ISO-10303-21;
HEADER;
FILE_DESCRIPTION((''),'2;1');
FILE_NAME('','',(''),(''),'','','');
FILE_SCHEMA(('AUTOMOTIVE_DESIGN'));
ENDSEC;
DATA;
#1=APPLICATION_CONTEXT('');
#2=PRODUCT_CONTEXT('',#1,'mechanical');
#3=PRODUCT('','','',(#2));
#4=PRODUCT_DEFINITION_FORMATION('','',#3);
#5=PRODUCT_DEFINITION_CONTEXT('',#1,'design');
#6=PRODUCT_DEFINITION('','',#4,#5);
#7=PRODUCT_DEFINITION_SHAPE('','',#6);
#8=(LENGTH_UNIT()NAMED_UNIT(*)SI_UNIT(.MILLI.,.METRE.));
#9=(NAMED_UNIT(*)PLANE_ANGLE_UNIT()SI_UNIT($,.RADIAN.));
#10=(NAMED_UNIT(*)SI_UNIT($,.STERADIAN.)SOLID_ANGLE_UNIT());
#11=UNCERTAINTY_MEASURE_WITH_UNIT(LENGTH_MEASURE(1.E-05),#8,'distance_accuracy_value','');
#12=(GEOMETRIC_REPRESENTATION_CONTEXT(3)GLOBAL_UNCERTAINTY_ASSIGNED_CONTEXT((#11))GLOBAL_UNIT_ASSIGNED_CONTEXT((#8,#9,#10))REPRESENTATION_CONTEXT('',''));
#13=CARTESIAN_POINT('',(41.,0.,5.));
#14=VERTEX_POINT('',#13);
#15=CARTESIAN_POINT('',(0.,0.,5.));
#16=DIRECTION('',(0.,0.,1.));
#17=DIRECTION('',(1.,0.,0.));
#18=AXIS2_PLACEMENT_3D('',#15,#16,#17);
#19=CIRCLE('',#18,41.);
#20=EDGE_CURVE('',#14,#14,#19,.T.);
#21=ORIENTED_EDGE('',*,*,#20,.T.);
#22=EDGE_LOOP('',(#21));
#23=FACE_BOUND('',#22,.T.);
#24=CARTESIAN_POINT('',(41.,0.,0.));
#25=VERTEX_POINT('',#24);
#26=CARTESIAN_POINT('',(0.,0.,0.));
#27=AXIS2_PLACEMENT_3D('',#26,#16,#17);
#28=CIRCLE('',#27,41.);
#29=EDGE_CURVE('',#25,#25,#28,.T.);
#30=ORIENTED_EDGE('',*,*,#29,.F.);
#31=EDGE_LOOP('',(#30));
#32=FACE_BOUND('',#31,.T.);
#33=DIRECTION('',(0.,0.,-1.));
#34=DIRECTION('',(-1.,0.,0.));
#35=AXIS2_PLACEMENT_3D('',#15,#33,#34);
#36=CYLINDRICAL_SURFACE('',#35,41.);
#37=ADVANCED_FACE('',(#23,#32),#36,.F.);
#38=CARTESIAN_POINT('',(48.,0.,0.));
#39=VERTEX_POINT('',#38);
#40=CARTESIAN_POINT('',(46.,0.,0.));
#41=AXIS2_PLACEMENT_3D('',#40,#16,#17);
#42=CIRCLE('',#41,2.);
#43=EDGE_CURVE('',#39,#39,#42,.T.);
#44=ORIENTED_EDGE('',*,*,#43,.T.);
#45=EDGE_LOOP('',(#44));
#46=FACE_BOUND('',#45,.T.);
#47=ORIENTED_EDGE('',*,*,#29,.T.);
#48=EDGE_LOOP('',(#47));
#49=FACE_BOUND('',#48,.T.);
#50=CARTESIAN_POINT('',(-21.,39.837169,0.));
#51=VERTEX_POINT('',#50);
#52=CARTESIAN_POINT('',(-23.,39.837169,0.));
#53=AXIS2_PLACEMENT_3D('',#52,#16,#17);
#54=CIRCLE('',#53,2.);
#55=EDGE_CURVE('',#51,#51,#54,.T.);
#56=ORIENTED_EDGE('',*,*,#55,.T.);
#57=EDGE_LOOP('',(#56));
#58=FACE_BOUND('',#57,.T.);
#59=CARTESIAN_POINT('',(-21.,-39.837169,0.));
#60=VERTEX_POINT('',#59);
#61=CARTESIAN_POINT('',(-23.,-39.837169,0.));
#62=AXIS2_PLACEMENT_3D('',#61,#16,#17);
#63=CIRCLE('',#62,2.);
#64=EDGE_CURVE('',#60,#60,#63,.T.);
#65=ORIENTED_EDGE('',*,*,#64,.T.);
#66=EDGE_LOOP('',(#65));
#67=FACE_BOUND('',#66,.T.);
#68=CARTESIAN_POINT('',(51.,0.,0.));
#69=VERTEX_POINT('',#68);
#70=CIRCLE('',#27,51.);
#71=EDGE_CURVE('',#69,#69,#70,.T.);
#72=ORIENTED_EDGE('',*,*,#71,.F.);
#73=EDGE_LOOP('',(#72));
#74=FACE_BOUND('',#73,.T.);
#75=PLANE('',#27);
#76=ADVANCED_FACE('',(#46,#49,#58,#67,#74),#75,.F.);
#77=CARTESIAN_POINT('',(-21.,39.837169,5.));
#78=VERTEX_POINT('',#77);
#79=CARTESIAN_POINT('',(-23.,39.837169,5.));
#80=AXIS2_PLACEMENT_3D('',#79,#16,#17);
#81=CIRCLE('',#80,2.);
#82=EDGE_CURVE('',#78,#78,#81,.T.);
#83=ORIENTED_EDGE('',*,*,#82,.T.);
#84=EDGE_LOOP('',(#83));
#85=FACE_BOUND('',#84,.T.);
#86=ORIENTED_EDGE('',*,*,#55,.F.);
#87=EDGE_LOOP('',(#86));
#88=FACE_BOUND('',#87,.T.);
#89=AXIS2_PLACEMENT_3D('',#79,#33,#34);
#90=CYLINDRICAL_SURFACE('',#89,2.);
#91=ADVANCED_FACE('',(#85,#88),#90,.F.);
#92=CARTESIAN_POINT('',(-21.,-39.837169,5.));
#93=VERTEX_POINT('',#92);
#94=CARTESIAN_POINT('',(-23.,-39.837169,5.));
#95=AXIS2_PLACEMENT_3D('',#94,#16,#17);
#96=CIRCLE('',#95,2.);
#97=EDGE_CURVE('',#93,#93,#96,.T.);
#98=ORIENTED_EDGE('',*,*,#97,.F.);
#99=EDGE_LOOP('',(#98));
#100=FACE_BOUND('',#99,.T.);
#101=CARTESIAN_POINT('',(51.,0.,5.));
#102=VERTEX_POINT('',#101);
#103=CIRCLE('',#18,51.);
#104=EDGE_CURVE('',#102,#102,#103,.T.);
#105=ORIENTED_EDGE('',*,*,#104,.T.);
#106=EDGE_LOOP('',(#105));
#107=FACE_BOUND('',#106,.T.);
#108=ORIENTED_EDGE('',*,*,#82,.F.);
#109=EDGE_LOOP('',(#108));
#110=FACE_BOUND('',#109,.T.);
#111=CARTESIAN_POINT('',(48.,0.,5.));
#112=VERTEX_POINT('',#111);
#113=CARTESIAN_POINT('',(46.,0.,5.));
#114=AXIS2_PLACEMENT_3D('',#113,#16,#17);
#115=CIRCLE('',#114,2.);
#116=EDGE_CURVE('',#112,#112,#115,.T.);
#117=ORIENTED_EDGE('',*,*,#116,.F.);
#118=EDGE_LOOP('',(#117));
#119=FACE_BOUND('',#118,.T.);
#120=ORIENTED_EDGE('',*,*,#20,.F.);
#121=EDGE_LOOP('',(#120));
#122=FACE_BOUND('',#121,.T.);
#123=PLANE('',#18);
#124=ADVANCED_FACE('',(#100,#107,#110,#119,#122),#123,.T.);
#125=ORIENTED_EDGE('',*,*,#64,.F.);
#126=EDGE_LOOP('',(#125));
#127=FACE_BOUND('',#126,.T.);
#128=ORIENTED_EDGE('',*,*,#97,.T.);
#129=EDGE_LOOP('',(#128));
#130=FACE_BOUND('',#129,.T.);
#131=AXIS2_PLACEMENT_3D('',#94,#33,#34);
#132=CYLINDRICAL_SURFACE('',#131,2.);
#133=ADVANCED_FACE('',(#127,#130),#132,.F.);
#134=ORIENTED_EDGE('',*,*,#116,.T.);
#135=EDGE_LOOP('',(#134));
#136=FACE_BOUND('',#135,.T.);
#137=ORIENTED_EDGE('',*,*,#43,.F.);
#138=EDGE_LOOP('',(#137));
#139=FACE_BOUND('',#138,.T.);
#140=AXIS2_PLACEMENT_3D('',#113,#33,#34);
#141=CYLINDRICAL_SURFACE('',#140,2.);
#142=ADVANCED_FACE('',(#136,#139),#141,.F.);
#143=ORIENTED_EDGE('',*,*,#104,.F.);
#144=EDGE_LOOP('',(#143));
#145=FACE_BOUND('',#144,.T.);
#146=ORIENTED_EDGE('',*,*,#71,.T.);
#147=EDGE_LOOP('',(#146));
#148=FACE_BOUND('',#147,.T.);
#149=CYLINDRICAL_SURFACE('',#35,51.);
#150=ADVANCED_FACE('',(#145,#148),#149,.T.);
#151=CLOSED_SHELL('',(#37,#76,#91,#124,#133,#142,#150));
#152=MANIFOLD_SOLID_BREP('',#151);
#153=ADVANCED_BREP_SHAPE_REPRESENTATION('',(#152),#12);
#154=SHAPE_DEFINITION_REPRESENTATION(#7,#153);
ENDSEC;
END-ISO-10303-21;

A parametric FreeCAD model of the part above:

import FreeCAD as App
import Part
import Sketcher
from FreeCAD import Vector
Q = App.Units.Quantity

doc = App.newDocument("Part")
params = doc.addObject("Spreadsheet::Sheet", "Params")
for row, (alias, value) in enumerate([
    ("sketch1_diameter", "102 mm"),
    ("sketch1_diameter2", "4 mm"),
    ("sketch1_diameter3", "82 mm"),
    ("pad1_length", "5 mm"),
], start=1):
    params.set(f"A{row}", alias)
    params.set(f"B{row}", "=" + value)
    params.setAlias(f"B{row}", alias)

body = doc.addObject("PartDesign::Body", "Body")

sketch1 = body.newObject("Sketcher::SketchObject", "Sketch")
sketch1.AttachmentSupport = (doc.getObject("XY_Plane"), [""])
sketch1.MapMode = "FlatFace"
sketch1.addGeometry(Part.Circle(Vector(0, 0, 0), Vector(0, 0, 1), 51), False)
sketch1.addGeometry(Part.Circle(Vector(-23, -39.8, 0), Vector(0, 0, 1), 2), False)
sketch1.addGeometry(Part.Circle(Vector(0, 0, 0), Vector(0, 0, 1), 41), False)
sketch1.addGeometry(Part.Circle(Vector(-23, 39.8, 0), Vector(0, 0, 1), 2), False)
sketch1.addGeometry(Part.Circle(Vector(46, 0, 0), Vector(0, 0, 1), 2), False)
sketch1.addConstraint(Sketcher.Constraint("Coincident", 0, 3, -1, 1))
sketch1.addConstraint(Sketcher.Constraint("Coincident", 2, 3, -1, 1))
sketch1.addConstraint(Sketcher.Constraint("Equal", 1, 3))
sketch1.addConstraint(Sketcher.Constraint("Equal", 3, 4))
sketch1.addConstraint(Sketcher.Constraint("Symmetric", 1, 3, 3, 3, -1))
sketch1.addConstraint(Sketcher.Constraint("PointOnObject", 4, 3, -1))
sketch1.addConstraint(Sketcher.Constraint("Diameter", 0, Q("102 mm")))
sketch1.addConstraint(Sketcher.Constraint("Diameter", 1, Q("4 mm")))
sketch1.addConstraint(Sketcher.Constraint("Diameter", 2, Q("82 mm")))
sketch1.addConstraint(Sketcher.Constraint("DistanceX", 1, 3, -1, 1, Q("23 mm")))
sketch1.addConstraint(Sketcher.Constraint("DistanceX", -1, 1, 4, 3, Q("46 mm")))
sketch1.addConstraint(Sketcher.Constraint("DistanceY", 1, 3, -1, 1, Q("39.837169 mm")))
sketch1.setExpression("Constraints[6]", "Params.sketch1_diameter")
sketch1.setExpression("Constraints[7]", "Params.sketch1_diameter2")
sketch1.setExpression("Constraints[8]", "Params.sketch1_diameter3")
pad1 = body.newObject("PartDesign::Pad", "Pad")
pad1.Profile = sketch1
pad1.setExpression("Length", "Params.pad1_length")

doc.recompute()
